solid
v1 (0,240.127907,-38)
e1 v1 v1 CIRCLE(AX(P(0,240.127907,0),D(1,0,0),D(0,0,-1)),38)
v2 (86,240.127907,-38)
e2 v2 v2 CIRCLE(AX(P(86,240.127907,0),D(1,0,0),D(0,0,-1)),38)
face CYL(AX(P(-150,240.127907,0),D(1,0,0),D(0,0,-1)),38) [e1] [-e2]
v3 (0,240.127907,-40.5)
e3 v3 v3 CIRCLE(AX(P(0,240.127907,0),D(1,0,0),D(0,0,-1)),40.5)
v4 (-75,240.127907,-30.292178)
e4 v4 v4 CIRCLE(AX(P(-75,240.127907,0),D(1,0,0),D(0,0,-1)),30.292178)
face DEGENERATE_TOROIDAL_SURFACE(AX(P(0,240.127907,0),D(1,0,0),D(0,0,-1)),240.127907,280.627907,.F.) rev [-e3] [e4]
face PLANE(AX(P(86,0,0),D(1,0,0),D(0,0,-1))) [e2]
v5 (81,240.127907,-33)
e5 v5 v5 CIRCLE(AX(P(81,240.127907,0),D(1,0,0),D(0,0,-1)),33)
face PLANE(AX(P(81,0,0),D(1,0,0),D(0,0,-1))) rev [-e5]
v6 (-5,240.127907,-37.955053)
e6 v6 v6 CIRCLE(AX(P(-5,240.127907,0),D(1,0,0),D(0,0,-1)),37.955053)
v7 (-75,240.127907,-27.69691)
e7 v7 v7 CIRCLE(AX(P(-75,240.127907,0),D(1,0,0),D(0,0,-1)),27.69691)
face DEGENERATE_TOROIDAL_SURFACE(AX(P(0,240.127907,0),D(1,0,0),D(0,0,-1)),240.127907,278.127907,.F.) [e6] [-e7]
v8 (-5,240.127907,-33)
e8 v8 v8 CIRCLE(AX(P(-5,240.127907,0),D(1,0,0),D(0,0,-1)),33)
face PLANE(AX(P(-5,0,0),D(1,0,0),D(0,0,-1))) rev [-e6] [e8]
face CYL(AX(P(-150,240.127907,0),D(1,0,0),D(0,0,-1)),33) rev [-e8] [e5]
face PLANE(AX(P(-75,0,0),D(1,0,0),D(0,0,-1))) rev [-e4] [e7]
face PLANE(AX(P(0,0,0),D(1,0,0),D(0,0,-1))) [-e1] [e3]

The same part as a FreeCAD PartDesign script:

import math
import FreeCAD as App
import Part
import Sketcher
Q = App.Units.Quantity

doc = App.newDocument("Part")
body = doc.addObject("PartDesign::Body", "Body")

# Sketch on XY plane
sketch1 = doc.addObject("Sketcher::SketchObject", "Sketch")
body.addObject(sketch1)
sketch1.AttachmentSupport = (doc.XY_Plane, [""])
sketch1.MapMode = "FlatFace"
sketch1.addGeometry([
    Part.LineSegment(App.Vector(0, 278.1, 0), App.Vector(0, 280.6, 0)),  # 0
    Part.ArcOfCircle(Part.Circle(App.Vector(0, 0, 0), App.Vector(0, 0, 1), 280.6), math.radians(90), math.radians(105.5)),  # 1
    Part.LineSegment(App.Vector(-75, 270.4, 0), App.Vector(-75, 267.8, 0)),  # 2
    Part.ArcOfCircle(Part.Circle(App.Vector(0, 0, 0), App.Vector(0, 0, 1), 278.1), math.radians(91.03), math.radians(105.64)),  # 3
    Part.LineSegment(App.Vector(-5, 278.1, 0), App.Vector(-5, 273.1, 0)),  # 4
    Part.LineSegment(App.Vector(-5, 273.1, 0), App.Vector(81, 273.1, 0)),  # 5
    Part.LineSegment(App.Vector(81, 273.1, 0), App.Vector(81, 240.1, 0)),  # 6
    Part.LineSegment(App.Vector(81, 240.1, 0), App.Vector(86, 240.1, 0)),  # 7
    Part.LineSegment(App.Vector(86, 240.1, 0), App.Vector(86, 278.1, 0)),  # 8
    Part.LineSegment(App.Vector(86, 278.1, 0), App.Vector(0, 278.1, 0)),  # 9
], False)
sketch1.addGeometry(Part.LineSegment(App.Vector(86, 240.1, 0), App.Vector(-75, 240.1, 0)), True)  # axis
sketch1.addConstraint([
    Sketcher.Constraint("Coincident", 0, 2, 1, 1),
    Sketcher.Constraint("Coincident", 1, 2, 2, 1),
    Sketcher.Constraint("Coincident", 2, 2, 3, 2),
    Sketcher.Constraint("Coincident", 3, 1, 4, 1),
    Sketcher.Constraint("Coincident", 4, 2, 5, 1),
    Sketcher.Constraint("Coincident", 5, 2, 6, 1),
    Sketcher.Constraint("Coincident", 6, 2, 7, 1),
    Sketcher.Constraint("Coincident", 7, 2, 8, 1),
    Sketcher.Constraint("Coincident", 8, 2, 9, 1),
    Sketcher.Constraint("Coincident", 9, 2, 0, 1),
    Sketcher.Constraint("Vertical", 0),
    Sketcher.Constraint("Vertical", 2),
    Sketcher.Constraint("Vertical", 4),
    Sketcher.Constraint("Horizontal", 5),
    Sketcher.Constraint("Vertical", 6),
    Sketcher.Constraint("Horizontal", 7),
    Sketcher.Constraint("Vertical", 8),
    Sketcher.Constraint("Horizontal", 9),
    Sketcher.Constraint("Horizontal", 10),
    Sketcher.Constraint("Coincident", 1, 3, -1, 1),
    Sketcher.Constraint("Coincident", 3, 3, -1, 1),
    Sketcher.Constraint("Coincident", 10, 1, 7, 2),
    Sketcher.Constraint("PointOnObject", 0, 2, -2),
    Sketcher.Constraint("Vertical", 2, 2, 10, 2),
    Sketcher.Constraint("Equal", 5, 9),
    Sketcher.Constraint("DistanceX", 5, 1, 5, 2, Q("86 mm")),
    Sketcher.Constraint("DistanceX", 7, 1, 7, 2, Q("5 mm")),
    Sketcher.Constraint("DistanceX", 10, 2, 10, 1, Q("161 mm")),
    Sketcher.Constraint("DistanceY", 6, 2, 6, 1, Q("33 mm")),
    Sketcher.Constraint("DistanceY", 8, 1, 8, 2, Q("38 mm")),
    Sketcher.Constraint("DistanceY", 0, 1, 0, 2, Q("2.5 mm")),
    Sketcher.Constraint("Radius", 1, Q("280.627907 mm")),
    Sketcher.Constraint("Radius", 3, Q("278.127907 mm")),
])
revolution = doc.addObject("PartDesign::Revolution", "Revolution")
body.addObject(revolution)
revolution.Profile = sketch1
revolution.ReferenceAxis = (sketch1, ["Axis0"])
revolution.Angle = 360

doc.recompute()
